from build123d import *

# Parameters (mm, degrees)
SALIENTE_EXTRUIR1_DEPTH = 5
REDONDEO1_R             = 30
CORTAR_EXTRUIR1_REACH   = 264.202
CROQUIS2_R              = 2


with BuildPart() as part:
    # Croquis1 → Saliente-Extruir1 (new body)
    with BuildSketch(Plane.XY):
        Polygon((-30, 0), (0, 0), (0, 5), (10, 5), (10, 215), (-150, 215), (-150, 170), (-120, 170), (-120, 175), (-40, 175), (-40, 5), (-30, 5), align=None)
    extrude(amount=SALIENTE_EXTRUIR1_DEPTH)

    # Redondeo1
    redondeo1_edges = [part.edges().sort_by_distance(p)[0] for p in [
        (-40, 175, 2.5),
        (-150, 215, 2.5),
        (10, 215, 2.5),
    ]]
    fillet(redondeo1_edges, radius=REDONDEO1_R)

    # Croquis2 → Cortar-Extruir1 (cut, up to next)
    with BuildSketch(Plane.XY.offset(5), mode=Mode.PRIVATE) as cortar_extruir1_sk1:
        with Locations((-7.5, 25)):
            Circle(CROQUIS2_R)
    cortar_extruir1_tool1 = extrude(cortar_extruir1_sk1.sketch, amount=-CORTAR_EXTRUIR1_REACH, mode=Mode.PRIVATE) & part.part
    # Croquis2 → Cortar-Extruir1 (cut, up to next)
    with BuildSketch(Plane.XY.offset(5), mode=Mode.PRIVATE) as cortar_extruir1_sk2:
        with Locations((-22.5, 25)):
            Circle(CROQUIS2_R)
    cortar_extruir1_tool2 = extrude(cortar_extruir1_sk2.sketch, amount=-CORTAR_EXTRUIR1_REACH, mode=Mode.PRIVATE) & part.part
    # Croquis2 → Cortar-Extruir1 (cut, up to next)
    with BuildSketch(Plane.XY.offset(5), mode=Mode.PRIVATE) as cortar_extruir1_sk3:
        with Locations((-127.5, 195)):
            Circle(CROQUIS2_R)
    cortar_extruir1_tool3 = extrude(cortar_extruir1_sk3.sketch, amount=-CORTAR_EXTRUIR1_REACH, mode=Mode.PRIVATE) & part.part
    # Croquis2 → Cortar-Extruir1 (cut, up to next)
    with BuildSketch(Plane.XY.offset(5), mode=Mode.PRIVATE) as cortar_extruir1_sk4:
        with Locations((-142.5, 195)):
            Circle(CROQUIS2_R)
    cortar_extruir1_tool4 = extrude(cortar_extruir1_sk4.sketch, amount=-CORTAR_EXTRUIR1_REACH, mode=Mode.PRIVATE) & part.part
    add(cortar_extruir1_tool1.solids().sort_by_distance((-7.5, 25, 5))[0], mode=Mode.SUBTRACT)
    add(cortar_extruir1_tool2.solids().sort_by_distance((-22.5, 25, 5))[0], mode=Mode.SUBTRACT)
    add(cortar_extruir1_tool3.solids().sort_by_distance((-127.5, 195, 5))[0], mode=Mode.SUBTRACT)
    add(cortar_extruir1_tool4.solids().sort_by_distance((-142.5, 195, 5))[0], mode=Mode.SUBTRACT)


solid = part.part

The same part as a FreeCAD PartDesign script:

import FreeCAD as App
import Part
import Sketcher
from FreeCAD import Vector
Q = App.Units.Quantity


def edges_at(feature, points):
    """Names of the edges that pass closest to the given points."""
    edges = feature.Shape.Edges
    near = lambda p: min(range(len(edges)), key=lambda i: edges[i].distToShape(Part.Vertex(*p))[0])
    return sorted({f"Edge{near(p) + 1}" for p in points})


def add_polygon(sketch, points):
    """Adds a closed chain of lines whose ends are joined by coincident constraints."""
    first, n = sketch.GeometryCount, len(points)
    for a, b in zip(points, points[1:] + points[:1]):
        sketch.addGeometry(Part.LineSegment(App.Vector(*a, 0), App.Vector(*b, 0)), False)
    for i in range(n):
        sketch.addConstraint(Sketcher.Constraint("Coincident", first + i, 2, first + (i + 1) % n, 1))

doc = App.newDocument("Part")
body = doc.addObject("PartDesign::Body", "Body")

# Sketch on XY plane
sketch1 = body.newObject("Sketcher::SketchObject", "Sketch")
sketch1.AttachmentSupport = (doc.getObject("XY_Plane"), [""])
sketch1.MapMode = "FlatFace"
add_polygon(sketch1, [(-30, 0), (0, 0), (0, 5), (10, 5), (10, 215), (-150, 215), (-150, 170), (-120, 170), (-120, 175), (-40, 175), (-40, 5), (-30, 5)])  # lines 0-11
sketch1.addConstraint([
    Sketcher.Constraint("Horizontal", 0),
    Sketcher.Constraint("Vertical", 1),
    Sketcher.Constraint("Horizontal", 2),
    Sketcher.Constraint("Vertical", 3),
    Sketcher.Constraint("Horizontal", 4),
    Sketcher.Constraint("Vertical", 5),
    Sketcher.Constraint("Horizontal", 6),
    Sketcher.Constraint("Vertical", 7),
    Sketcher.Constraint("Horizontal", 8),
    Sketcher.Constraint("Vertical", 9),
    Sketcher.Constraint("Horizontal", 10),
    Sketcher.Constraint("Vertical", 11),
    Sketcher.Constraint("Coincident", 0, 2, -1, 1),
    Sketcher.Constraint("Horizontal", 2, 2, 9, 2),
    Sketcher.Constraint("Equal", 0, 6),
    Sketcher.Constraint("Equal", 2, 10),
    Sketcher.Constraint("Equal", 1, 7),
    Sketcher.Constraint("DistanceX", 0, 1, 0, 2, Q("30 mm")),
    Sketcher.Constraint("DistanceX", 2, 1, 2, 2, Q("10 mm")),
    Sketcher.Constraint("DistanceX", 4, 2, 4, 1, Q("160 mm")),
    Sketcher.Constraint("DistanceY", 1, 1, 1, 2, Q("5 mm")),
    Sketcher.Constraint("DistanceY", 3, 1, 3, 2, Q("210 mm")),
    Sketcher.Constraint("DistanceY", 5, 2, 5, 1, Q("45 mm")),
])
pad1 = body.newObject("PartDesign::Pad", "Pad")
pad1.Profile = sketch1
pad1.Length = 5
doc.recompute()

fillet = body.newObject("PartDesign::Fillet", "Fillet")
fillet.Base = (pad1, edges_at(pad1, [(-40, 175, 2.5), (-150, 215, 2.5), (10, 215, 2.5)]))
fillet.Radius = 30

# Sketch on XY plane
sketch2 = body.newObject("Sketcher::SketchObject", "Sketch001")
sketch2.AttachmentSupport = (doc.getObject("XY_Plane"), [""])
sketch2.MapMode = "FlatFace"
sketch2.AttachmentOffset = App.Placement(Vector(0, 0, 5), App.Rotation())
sketch2.addGeometry(Part.Circle(Vector(-7.5, 25, 0), Vector(0, 0, 1), 2), False)
sketch2.addConstraint([
    Sketcher.Constraint("Diameter", 0, Q("4 mm")),
    Sketcher.Constraint("DistanceY", -1, 1, 0, 3, Q("25 mm")),
    Sketcher.Constraint("DistanceX", 0, 3, -1, 1, Q("7.5 mm")),
])
pocket1 = body.newObject("PartDesign::Pocket", "Pocket")
pocket1.Profile = sketch2
pocket1.Type = "UpToFirst"

# Sketch on XY plane
sketch3 = body.newObject("Sketcher::SketchObject", "Sketch002")
sketch3.AttachmentSupport = (doc.getObject("XY_Plane"), [""])
sketch3.MapMode = "FlatFace"
sketch3.AttachmentOffset = App.Placement(Vector(0, 0, 5), App.Rotation())
sketch3.addGeometry(Part.Circle(Vector(-22.5, 25, 0), Vector(0, 0, 1), 2), False)
sketch3.addConstraint([
    Sketcher.Constraint("Diameter", 0, Q("4 mm")),
    Sketcher.Constraint("DistanceY", -1, 1, 0, 3, Q("25 mm")),
    Sketcher.Constraint("DistanceX", 0, 3, -1, 1, Q("22.5 mm")),
])
pocket2 = body.newObject("PartDesign::Pocket", "Pocket001")
pocket2.Profile = sketch3
pocket2.Type = "UpToFirst"

# Sketch on XY plane
sketch4 = body.newObject("Sketcher::SketchObject", "Sketch003")
sketch4.AttachmentSupport = (doc.getObject("XY_Plane"), [""])
sketch4.MapMode = "FlatFace"
sketch4.AttachmentOffset = App.Placement(Vector(0, 0, 5), App.Rotation())
sketch4.addGeometry(Part.Circle(Vector(-127.5, 195, 0), Vector(0, 0, 1), 2), False)
sketch4.addConstraint([
    Sketcher.Constraint("Diameter", 0, Q("4 mm")),
    Sketcher.Constraint("DistanceY", -1, 1, 0, 3, Q("195 mm")),
    Sketcher.Constraint("DistanceX", 0, 3, -1, 1, Q("127.5 mm")),
])
pocket3 = body.newObject("PartDesign::Pocket", "Pocket002")
pocket3.Profile = sketch4
pocket3.Type = "UpToFirst"

# Sketch on XY plane
sketch5 = body.newObject("Sketcher::SketchObject", "Sketch004")
sketch5.AttachmentSupport = (doc.getObject("XY_Plane"), [""])
sketch5.MapMode = "FlatFace"
sketch5.AttachmentOffset = App.Placement(Vector(0, 0, 5), App.Rotation())
sketch5.addGeometry(Part.Circle(Vector(-142.5, 195, 0), Vector(0, 0, 1), 2), False)
sketch5.addConstraint([
    Sketcher.Constraint("Diameter", 0, Q("4 mm")),
    Sketcher.Constraint("DistanceY", -1, 1, 0, 3, Q("195 mm")),
    Sketcher.Constraint("DistanceX", 0, 3, -1, 1, Q("142.5 mm")),
])
pocket4 = body.newObject("PartDesign::Pocket", "Pocket003")
pocket4.Profile = sketch5
pocket4.Type = "UpToFirst"

doc.recompute()
